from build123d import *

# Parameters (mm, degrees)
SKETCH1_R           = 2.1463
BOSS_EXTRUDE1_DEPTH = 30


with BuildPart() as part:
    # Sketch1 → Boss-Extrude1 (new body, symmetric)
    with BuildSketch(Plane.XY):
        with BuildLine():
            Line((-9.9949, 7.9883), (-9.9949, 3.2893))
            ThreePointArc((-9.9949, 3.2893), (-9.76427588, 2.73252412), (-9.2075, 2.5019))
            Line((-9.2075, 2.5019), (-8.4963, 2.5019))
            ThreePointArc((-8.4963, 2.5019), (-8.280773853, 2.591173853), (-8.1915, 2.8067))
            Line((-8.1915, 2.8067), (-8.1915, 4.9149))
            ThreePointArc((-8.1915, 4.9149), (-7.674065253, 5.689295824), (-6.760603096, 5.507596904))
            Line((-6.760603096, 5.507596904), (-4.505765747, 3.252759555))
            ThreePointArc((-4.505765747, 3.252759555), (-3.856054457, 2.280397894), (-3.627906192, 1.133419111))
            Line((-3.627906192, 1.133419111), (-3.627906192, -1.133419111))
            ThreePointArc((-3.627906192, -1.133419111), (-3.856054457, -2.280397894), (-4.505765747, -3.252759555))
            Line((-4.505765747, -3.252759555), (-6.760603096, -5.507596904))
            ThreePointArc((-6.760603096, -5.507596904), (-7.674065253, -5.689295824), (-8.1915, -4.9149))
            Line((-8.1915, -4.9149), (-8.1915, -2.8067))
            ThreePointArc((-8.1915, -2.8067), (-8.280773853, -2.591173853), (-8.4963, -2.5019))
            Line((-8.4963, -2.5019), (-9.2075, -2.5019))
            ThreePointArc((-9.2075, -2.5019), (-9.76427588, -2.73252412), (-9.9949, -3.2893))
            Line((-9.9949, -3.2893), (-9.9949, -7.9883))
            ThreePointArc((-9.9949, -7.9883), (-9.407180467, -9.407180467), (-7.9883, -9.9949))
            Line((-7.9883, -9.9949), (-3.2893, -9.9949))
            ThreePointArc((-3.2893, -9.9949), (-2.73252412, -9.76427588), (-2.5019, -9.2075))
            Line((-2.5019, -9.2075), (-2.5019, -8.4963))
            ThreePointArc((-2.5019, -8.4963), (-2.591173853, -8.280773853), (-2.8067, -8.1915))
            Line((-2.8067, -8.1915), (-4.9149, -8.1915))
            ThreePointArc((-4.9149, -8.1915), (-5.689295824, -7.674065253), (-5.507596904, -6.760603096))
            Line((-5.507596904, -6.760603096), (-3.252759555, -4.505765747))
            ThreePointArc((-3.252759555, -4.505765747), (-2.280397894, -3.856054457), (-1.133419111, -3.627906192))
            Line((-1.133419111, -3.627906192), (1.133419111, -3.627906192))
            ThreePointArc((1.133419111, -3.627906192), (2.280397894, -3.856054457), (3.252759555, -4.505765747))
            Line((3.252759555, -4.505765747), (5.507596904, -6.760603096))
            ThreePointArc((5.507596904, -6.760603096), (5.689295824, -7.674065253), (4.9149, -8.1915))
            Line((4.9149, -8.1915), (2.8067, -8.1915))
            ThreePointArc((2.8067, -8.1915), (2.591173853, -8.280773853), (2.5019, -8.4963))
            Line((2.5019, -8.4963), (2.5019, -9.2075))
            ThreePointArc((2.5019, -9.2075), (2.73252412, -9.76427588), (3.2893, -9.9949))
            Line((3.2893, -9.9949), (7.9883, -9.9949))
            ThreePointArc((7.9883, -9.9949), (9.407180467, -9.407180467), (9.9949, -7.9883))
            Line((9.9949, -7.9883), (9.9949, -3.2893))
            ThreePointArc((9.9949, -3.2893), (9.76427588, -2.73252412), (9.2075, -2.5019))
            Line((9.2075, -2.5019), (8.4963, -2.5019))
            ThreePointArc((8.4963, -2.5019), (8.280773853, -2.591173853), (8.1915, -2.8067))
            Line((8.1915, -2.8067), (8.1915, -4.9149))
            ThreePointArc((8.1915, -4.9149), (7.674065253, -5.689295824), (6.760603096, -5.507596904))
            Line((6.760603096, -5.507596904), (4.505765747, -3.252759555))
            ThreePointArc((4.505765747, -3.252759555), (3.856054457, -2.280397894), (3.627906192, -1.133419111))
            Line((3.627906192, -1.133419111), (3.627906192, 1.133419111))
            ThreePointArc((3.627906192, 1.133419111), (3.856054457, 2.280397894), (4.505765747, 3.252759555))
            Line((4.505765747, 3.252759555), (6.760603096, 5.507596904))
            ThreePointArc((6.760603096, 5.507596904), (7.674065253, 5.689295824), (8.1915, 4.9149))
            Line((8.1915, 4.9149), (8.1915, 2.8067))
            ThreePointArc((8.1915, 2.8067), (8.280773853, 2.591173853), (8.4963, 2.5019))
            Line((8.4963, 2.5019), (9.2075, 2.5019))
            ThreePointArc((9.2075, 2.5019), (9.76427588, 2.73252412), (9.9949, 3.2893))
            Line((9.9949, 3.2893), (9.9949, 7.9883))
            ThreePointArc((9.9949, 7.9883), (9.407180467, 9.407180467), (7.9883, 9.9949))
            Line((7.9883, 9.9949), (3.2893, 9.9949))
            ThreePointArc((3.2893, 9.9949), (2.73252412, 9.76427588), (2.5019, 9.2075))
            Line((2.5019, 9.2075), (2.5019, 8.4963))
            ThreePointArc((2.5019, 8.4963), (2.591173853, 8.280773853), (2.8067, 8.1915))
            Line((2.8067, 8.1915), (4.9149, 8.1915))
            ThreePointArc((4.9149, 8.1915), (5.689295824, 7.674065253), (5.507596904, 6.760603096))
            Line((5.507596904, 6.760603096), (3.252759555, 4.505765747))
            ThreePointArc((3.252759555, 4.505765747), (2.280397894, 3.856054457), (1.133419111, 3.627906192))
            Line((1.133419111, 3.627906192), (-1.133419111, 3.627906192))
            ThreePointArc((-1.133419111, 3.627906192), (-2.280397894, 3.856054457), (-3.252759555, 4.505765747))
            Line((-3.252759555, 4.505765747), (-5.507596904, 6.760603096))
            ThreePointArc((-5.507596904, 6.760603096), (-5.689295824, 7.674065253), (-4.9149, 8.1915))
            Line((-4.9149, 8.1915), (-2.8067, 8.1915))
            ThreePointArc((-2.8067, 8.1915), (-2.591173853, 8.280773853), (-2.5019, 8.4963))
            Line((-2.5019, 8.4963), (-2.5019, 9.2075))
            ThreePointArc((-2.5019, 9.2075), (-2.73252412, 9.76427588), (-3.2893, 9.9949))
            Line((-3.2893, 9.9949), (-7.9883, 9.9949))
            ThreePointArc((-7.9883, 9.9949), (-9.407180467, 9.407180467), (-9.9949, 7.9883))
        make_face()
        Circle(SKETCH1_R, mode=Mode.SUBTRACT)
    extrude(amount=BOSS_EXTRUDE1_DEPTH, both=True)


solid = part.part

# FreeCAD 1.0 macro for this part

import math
import FreeCAD as App
import Part
import Sketcher

V = App.Vector
Q = App.Units.Quantity

doc = App.newDocument("Part")
body = doc.addObject("PartDesign::Body", "Body")

# Sketch on XY plane
sketch1 = body.newObject("Sketcher::SketchObject", "Sketch")
sketch1.AttachmentSupport = (doc.getObject("XY_Plane"), [""])
sketch1.MapMode = "FlatFace"
sketch1.addGeometry(Part.LineSegment(V(-9.99, 7.99, 0), V(-9.99, 3.29, 0)), False)
sketch1.addGeometry(Part.ArcOfCircle(Part.Circle(V(-9.21, 3.29, 0), V(0, 0, 1), 0.79), math.radians(180), math.radians(270)), False)
sketch1.addGeometry(Part.LineSegment(V(-9.21, 2.5, 0), V(-8.5, 2.5, 0)), False)
sketch1.addGeometry(Part.ArcOfCircle(Part.Circle(V(-8.5, 2.81, 0), V(0, 0, 1), 0.3), math.radians(-90), math.radians(0)), False)
sketch1.addGeometry(Part.LineSegment(V(-8.19, 2.81, 0), V(-8.19, 4.91, 0)), False)
sketch1.addGeometry(Part.ArcOfCircle(Part.Circle(V(-7.35, 4.91, 0), V(0, 0, 1), 0.84), math.radians(45), math.radians(180)), False)
sketch1.addGeometry(Part.LineSegment(V(-6.76, 5.51, 0), V(-4.51, 3.25, 0)), False)
sketch1.addGeometry(Part.ArcOfCircle(Part.Circle(V(-6.63, 1.13, 0), V(0, 0, 1), 3), math.radians(0), math.radians(45)), False)
sketch1.addGeometry(Part.LineSegment(V(-3.63, 1.13, 0), V(-3.63, -1.13, 0)), False)
sketch1.addGeometry(Part.ArcOfCircle(Part.Circle(V(-6.63, -1.13, 0), V(0, 0, 1), 3), math.radians(-45), math.radians(0)), False)
sketch1.addGeometry(Part.LineSegment(V(-4.51, -3.25, 0), V(-6.76, -5.51, 0)), False)
sketch1.addGeometry(Part.ArcOfCircle(Part.Circle(V(-7.35, -4.91, 0), V(0, 0, 1), 0.84), math.radians(180), math.radians(315)), False)
sketch1.addGeometry(Part.LineSegment(V(-8.19, -4.91, 0), V(-8.19, -2.81, 0)), False)
sketch1.addGeometry(Part.ArcOfCircle(Part.Circle(V(-8.5, -2.81, 0), V(0, 0, 1), 0.3), math.radians(0), math.radians(90)), False)
sketch1.addGeometry(Part.LineSegment(V(-8.5, -2.5, 0), V(-9.21, -2.5, 0)), False)
sketch1.addGeometry(Part.ArcOfCircle(Part.Circle(V(-9.21, -3.29, 0), V(0, 0, 1), 0.79), math.radians(90), math.radians(180)), False)
sketch1.addGeometry(Part.LineSegment(V(-9.99, -3.29, 0), V(-9.99, -7.99, 0)), False)
sketch1.addGeometry(Part.ArcOfCircle(Part.Circle(V(-7.99, -7.99, 0), V(0, 0, 1), 2.01), math.radians(180), math.radians(270)), False)
sketch1.addGeometry(Part.LineSegment(V(-7.99, -9.99, 0), V(-3.29, -9.99, 0)), False)
sketch1.addGeometry(Part.ArcOfCircle(Part.Circle(V(-3.29, -9.21, 0), V(0, 0, 1), 0.79), math.radians(-90), math.radians(0)), False)
sketch1.addGeometry(Part.LineSegment(V(-2.5, -9.21, 0), V(-2.5, -8.5, 0)), False)
sketch1.addGeometry(Part.ArcOfCircle(Part.Circle(V(-2.81, -8.5, 0), V(0, 0, 1), 0.3), math.radians(0), math.radians(90)), False)
sketch1.addGeometry(Part.LineSegment(V(-2.81, -8.19, 0), V(-4.91, -8.19, 0)), False)
sketch1.addGeometry(Part.ArcOfCircle(Part.Circle(V(-4.91, -7.35, 0), V(0, 0, 1), 0.84), math.radians(135), math.radians(270)), False)
sketch1.addGeometry(Part.LineSegment(V(-5.51, -6.76, 0), V(-3.25, -4.51, 0)), False)
sketch1.addGeometry(Part.ArcOfCircle(Part.Circle(V(-1.13, -6.63, 0), V(0, 0, 1), 3), math.radians(90), math.radians(135)), False)
sketch1.addGeometry(Part.LineSegment(V(-1.13, -3.63, 0), V(1.13, -3.63, 0)), False)
sketch1.addGeometry(Part.ArcOfCircle(Part.Circle(V(1.13, -6.63, 0), V(0, 0, 1), 3), math.radians(45), math.radians(90)), False)
sketch1.addGeometry(Part.LineSegment(V(3.25, -4.51, 0), V(5.51, -6.76, 0)), False)
sketch1.addGeometry(Part.ArcOfCircle(Part.Circle(V(4.91, -7.35, 0), V(0, 0, 1), 0.84), math.radians(-90), math.radians(45)), False)
sketch1.addGeometry(Part.LineSegment(V(4.91, -8.19, 0), V(2.81, -8.19, 0)), False)
sketch1.addGeometry(Part.ArcOfCircle(Part.Circle(V(2.81, -8.5, 0), V(0, 0, 1), 0.3), math.radians(90), math.radians(180)), False)
sketch1.addGeometry(Part.LineSegment(V(2.5, -8.5, 0), V(2.5, -9.21, 0)), False)
sketch1.addGeometry(Part.ArcOfCircle(Part.Circle(V(3.29, -9.21, 0), V(0, 0, 1), 0.79), math.radians(180), math.radians(270)), False)
sketch1.addGeometry(Part.LineSegment(V(3.29, -9.99, 0), V(7.99, -9.99, 0)), False)
sketch1.addGeometry(Part.ArcOfCircle(Part.Circle(V(7.99, -7.99, 0), V(0, 0, 1), 2.01), math.radians(-90), math.radians(0)), False)
sketch1.addGeometry(Part.LineSegment(V(9.99, -7.99, 0), V(9.99, -3.29, 0)), False)
sketch1.addGeometry(Part.ArcOfCircle(Part.Circle(V(9.21, -3.29, 0), V(0, 0, 1), 0.79), math.radians(0), math.radians(90)), False)
sketch1.addGeometry(Part.LineSegment(V(9.21, -2.5, 0), V(8.5, -2.5, 0)), False)
sketch1.addGeometry(Part.ArcOfCircle(Part.Circle(V(8.5, -2.81, 0), V(0, 0, 1), 0.3), math.radians(90), math.radians(180)), False)
sketch1.addGeometry(Part.LineSegment(V(8.19, -2.81, 0), V(8.19, -4.91, 0)), False)
sketch1.addGeometry(Part.ArcOfCircle(Part.Circle(V(7.35, -4.91, 0), V(0, 0, 1), 0.84), math.radians(-135), math.radians(0)), False)
sketch1.addGeometry(Part.LineSegment(V(6.76, -5.51, 0), V(4.51, -3.25, 0)), False)
sketch1.addGeometry(Part.ArcOfCircle(Part.Circle(V(6.63, -1.13, 0), V(0, 0, 1), 3), math.radians(180), math.radians(225)), False)
sketch1.addGeometry(Part.LineSegment(V(3.63, -1.13, 0), V(3.63, 1.13, 0)), False)
sketch1.addGeometry(Part.ArcOfCircle(Part.Circle(V(6.63, 1.13, 0), V(0, 0, 1), 3), math.radians(135), math.radians(180)), False)
sketch1.addGeometry(Part.LineSegment(V(4.51, 3.25, 0), V(6.76, 5.51, 0)), False)
sketch1.addGeometry(Part.ArcOfCircle(Part.Circle(V(7.35, 4.91, 0), V(0, 0, 1), 0.84), math.radians(0), math.radians(135)), False)
sketch1.addGeometry(Part.LineSegment(V(8.19, 4.91, 0), V(8.19, 2.81, 0)), False)
sketch1.addGeometry(Part.ArcOfCircle(Part.Circle(V(8.5, 2.81, 0), V(0, 0, 1), 0.3), math.radians(180), math.radians(270)), False)
sketch1.addGeometry(Part.LineSegment(V(8.5, 2.5, 0), V(9.21, 2.5, 0)), False)
sketch1.addGeometry(Part.ArcOfCircle(Part.Circle(V(9.21, 3.29, 0), V(0, 0, 1), 0.79), math.radians(-90), math.radians(0)), False)
sketch1.addGeometry(Part.LineSegment(V(9.99, 3.29, 0), V(9.99, 7.99, 0)), False)
sketch1.addGeometry(Part.ArcOfCircle(Part.Circle(V(7.99, 7.99, 0), V(0, 0, 1), 2.01), math.radians(0), math.radians(90)), False)
sketch1.addGeometry(Part.LineSegment(V(7.99, 9.99, 0), V(3.29, 9.99, 0)), False)
sketch1.addGeometry(Part.ArcOfCircle(Part.Circle(V(3.29, 9.21, 0), V(0, 0, 1), 0.79), math.radians(90), math.radians(180)), False)
sketch1.addGeometry(Part.LineSegment(V(2.5, 9.21, 0), V(2.5, 8.5, 0)), False)
sketch1.addGeometry(Part.ArcOfCircle(Part.Circle(V(2.81, 8.5, 0), V(0, 0, 1), 0.3), math.radians(180), math.radians(270)), False)
sketch1.addGeometry(Part.LineSegment(V(2.81, 8.19, 0), V(4.91, 8.19, 0)), False)
sketch1.addGeometry(Part.ArcOfCircle(Part.Circle(V(4.91, 7.35, 0), V(0, 0, 1), 0.84), math.radians(-45), math.radians(90)), False)
sketch1.addGeometry(Part.LineSegment(V(5.51, 6.76, 0), V(3.25, 4.51, 0)), False)
sketch1.addGeometry(Part.ArcOfCircle(Part.Circle(V(1.13, 6.63, 0), V(0, 0, 1), 3), math.radians(-90), math.radians(-45)), False)
sketch1.addGeometry(Part.LineSegment(V(1.13, 3.63, 0), V(-1.13, 3.63, 0)), False)
sketch1.addGeometry(Part.ArcOfCircle(Part.Circle(V(-1.13, 6.63, 0), V(0, 0, 1), 3), math.radians(-135), math.radians(-90)), False)
sketch1.addGeometry(Part.LineSegment(V(-3.25, 4.51, 0), V(-5.51, 6.76, 0)), False)
sketch1.addGeometry(Part.ArcOfCircle(Part.Circle(V(-4.91, 7.35, 0), V(0, 0, 1), 0.84), math.radians(90), math.radians(225)), False)
sketch1.addGeometry(Part.LineSegment(V(-4.91, 8.19, 0), V(-2.81, 8.19, 0)), False)
sketch1.addGeometry(Part.ArcOfCircle(Part.Circle(V(-2.81, 8.5, 0), V(0, 0, 1), 0.3), math.radians(-90), math.radians(0)), False)
sketch1.addGeometry(Part.LineSegment(V(-2.5, 8.5, 0), V(-2.5, 9.21, 0)), False)
sketch1.addGeometry(Part.ArcOfCircle(Part.Circle(V(-3.29, 9.21, 0), V(0, 0, 1), 0.79), math.radians(0), math.radians(90)), False)
sketch1.addGeometry(Part.LineSegment(V(-3.29, 9.99, 0), V(-7.99, 9.99, 0)), False)
sketch1.addGeometry(Part.ArcOfCircle(Part.Circle(V(-7.99, 7.99, 0), V(0, 0, 1), 2.01), math.radians(90), math.radians(180)), False)
sketch1.addGeometry(Part.Circle(V(0, 0, 0), V(0, 0, 1), 2.15), False)
sketch1.addConstraint(Sketcher.Constraint("Tangent", 0, 2, 1, 1))
sketch1.addConstraint(Sketcher.Constraint("Tangent", 1, 2, 2, 1))
sketch1.addConstraint(Sketcher.Constraint("Tangent", 2, 2, 3, 1))
sketch1.addConstraint(Sketcher.Constraint("Tangent", 3, 2, 4, 1))
sketch1.addConstraint(Sketcher.Constraint("Tangent", 4, 2, 5, 2))
sketch1.addConstraint(Sketcher.Constraint("Tangent", 5, 1, 6, 1))
sketch1.addConstraint(Sketcher.Constraint("Tangent", 6, 2, 7, 2))
sketch1.addConstraint(Sketcher.Constraint("Tangent", 7, 1, 8, 1))
sketch1.addConstraint(Sketcher.Constraint("Tangent", 8, 2, 9, 2))
sketch1.addConstraint(Sketcher.Constraint("Tangent", 9, 1, 10, 1))
sketch1.addConstraint(Sketcher.Constraint("Tangent", 10, 2, 11, 2))
sketch1.addConstraint(Sketcher.Constraint("Tangent", 11, 1, 12, 1))
sketch1.addConstraint(Sketcher.Constraint("Tangent", 12, 2, 13, 1))
sketch1.addConstraint(Sketcher.Constraint("Tangent", 13, 2, 14, 1))
sketch1.addConstraint(Sketcher.Constraint("Tangent", 14, 2, 15, 1))
sketch1.addConstraint(Sketcher.Constraint("Tangent", 15, 2, 16, 1))
sketch1.addConstraint(Sketcher.Constraint("Tangent", 16, 2, 17, 1))
sketch1.addConstraint(Sketcher.Constraint("Tangent", 17, 2, 18, 1))
sketch1.addConstraint(Sketcher.Constraint("Tangent", 18, 2, 19, 1))
sketch1.addConstraint(Sketcher.Constraint("Tangent", 19, 2, 20, 1))
sketch1.addConstraint(Sketcher.Constraint("Tangent", 20, 2, 21, 1))
sketch1.addConstraint(Sketcher.Constraint("Tangent", 21, 2, 22, 1))
sketch1.addConstraint(Sketcher.Constraint("Tangent", 22, 2, 23, 2))
sketch1.addConstraint(Sketcher.Constraint("Tangent", 23, 1, 24, 1))
sketch1.addConstraint(Sketcher.Constraint("Tangent", 24, 2, 25, 2))
sketch1.addConstraint(Sketcher.Constraint("Tangent", 25, 1, 26, 1))
sketch1.addConstraint(Sketcher.Constraint("Tangent", 26, 2, 27, 2))
sketch1.addConstraint(Sketcher.Constraint("Tangent", 27, 1, 28, 1))
sketch1.addConstraint(Sketcher.Constraint("Tangent", 28, 2, 29, 2))
sketch1.addConstraint(Sketcher.Constraint("Tangent", 29, 1, 30, 1))
sketch1.addConstraint(Sketcher.Constraint("Tangent", 30, 2, 31, 1))
sketch1.addConstraint(Sketcher.Constraint("Tangent", 31, 2, 32, 1))
sketch1.addConstraint(Sketcher.Constraint("Tangent", 32, 2, 33, 1))
sketch1.addConstraint(Sketcher.Constraint("Tangent", 33, 2, 34, 1))
sketch1.addConstraint(Sketcher.Constraint("Tangent", 34, 2, 35, 1))
sketch1.addConstraint(Sketcher.Constraint("Tangent", 35, 2, 36, 1))
sketch1.addConstraint(Sketcher.Constraint("Tangent", 36, 2, 37, 1))
sketch1.addConstraint(Sketcher.Constraint("Tangent", 37, 2, 38, 1))
sketch1.addConstraint(Sketcher.Constraint("Tangent", 38, 2, 39, 1))
sketch1.addConstraint(Sketcher.Constraint("Tangent", 39, 2, 40, 1))
sketch1.addConstraint(Sketcher.Constraint("Tangent", 40, 2, 41, 2))
sketch1.addConstraint(Sketcher.Constraint("Tangent", 41, 1, 42, 1))
sketch1.addConstraint(Sketcher.Constraint("Tangent", 42, 2, 43, 2))
sketch1.addConstraint(Sketcher.Constraint("Tangent", 43, 1, 44, 1))
sketch1.addConstraint(Sketcher.Constraint("Tangent", 44, 2, 45, 2))
sketch1.addConstraint(Sketcher.Constraint("Tangent", 45, 1, 46, 1))
sketch1.addConstraint(Sketcher.Constraint("Tangent", 46, 2, 47, 2))
sketch1.addConstraint(Sketcher.Constraint("Tangent", 47, 1, 48, 1))
sketch1.addConstraint(Sketcher.Constraint("Tangent", 48, 2, 49, 1))
sketch1.addConstraint(Sketcher.Constraint("Tangent", 49, 2, 50, 1))
sketch1.addConstraint(Sketcher.Constraint("Tangent", 50, 2, 51, 1))
sketch1.addConstraint(Sketcher.Constraint("Tangent", 51, 2, 52, 1))
sketch1.addConstraint(Sketcher.Constraint("Tangent", 52, 2, 53, 1))
sketch1.addConstraint(Sketcher.Constraint("Tangent", 53, 2, 54, 1))
sketch1.addConstraint(Sketcher.Constraint("Tangent", 54, 2, 55, 1))
sketch1.addConstraint(Sketcher.Constraint("Tangent", 55, 2, 56, 1))
sketch1.addConstraint(Sketcher.Constraint("Tangent", 56, 2, 57, 1))
sketch1.addConstraint(Sketcher.Constraint("Tangent", 57, 2, 58, 1))
sketch1.addConstraint(Sketcher.Constraint("Tangent", 58, 2, 59, 2))
sketch1.addConstraint(Sketcher.Constraint("Tangent", 59, 1, 60, 1))
sketch1.addConstraint(Sketcher.Constraint("Tangent", 60, 2, 61, 2))
sketch1.addConstraint(Sketcher.Constraint("Tangent", 61, 1, 62, 1))
sketch1.addConstraint(Sketcher.Constraint("Tangent", 62, 2, 63, 2))
sketch1.addConstraint(Sketcher.Constraint("Tangent", 63, 1, 64, 1))
sketch1.addConstraint(Sketcher.Constraint("Tangent", 64, 2, 65, 2))
sketch1.addConstraint(Sketcher.Constraint("Tangent", 65, 1, 66, 1))
sketch1.addConstraint(Sketcher.Constraint("Tangent", 66, 2, 67, 1))
sketch1.addConstraint(Sketcher.Constraint("Tangent", 67, 2, 68, 1))
sketch1.addConstraint(Sketcher.Constraint("Tangent", 68, 2, 69, 1))
sketch1.addConstraint(Sketcher.Constraint("Tangent", 69, 2, 70, 1))
sketch1.addConstraint(Sketcher.Constraint("Tangent", 70, 2, 71, 1))
sketch1.addConstraint(Sketcher.Constraint("Tangent", 71, 2, 0, 1))
sketch1.addConstraint(Sketcher.Constraint("Vertical", 0))
sketch1.addConstraint(Sketcher.Constraint("Horizontal", 2))
sketch1.addConstraint(Sketcher.Constraint("Vertical", 4))
sketch1.addConstraint(Sketcher.Constraint("Vertical", 8))
sketch1.addConstraint(Sketcher.Constraint("Vertical", 12))
sketch1.addConstraint(Sketcher.Constraint("Horizontal", 14))
sketch1.addConstraint(Sketcher.Constraint("Vertical", 16))
sketch1.addConstraint(Sketcher.Constraint("Horizontal", 18))
sketch1.addConstraint(Sketcher.Constraint("Vertical", 20))
sketch1.addConstraint(Sketcher.Constraint("Horizontal", 22))
sketch1.addConstraint(Sketcher.Constraint("Horizontal", 26))
sketch1.addConstraint(Sketcher.Constraint("Horizontal", 30))
sketch1.addConstraint(Sketcher.Constraint("Vertical", 32))
sketch1.addConstraint(Sketcher.Constraint("Horizontal", 34))
sketch1.addConstraint(Sketcher.Constraint("Vertical", 36))
sketch1.addConstraint(Sketcher.Constraint("Horizontal", 38))
sketch1.addConstraint(Sketcher.Constraint("Vertical", 40))
sketch1.addConstraint(Sketcher.Constraint("Vertical", 44))
sketch1.addConstraint(Sketcher.Constraint("Vertical", 48))
sketch1.addConstraint(Sketcher.Constraint("Horizontal", 50))
sketch1.addConstraint(Sketcher.Constraint("Vertical", 52))
sketch1.addConstraint(Sketcher.Constraint("Horizontal", 54))
sketch1.addConstraint(Sketcher.Constraint("Vertical", 56))
sketch1.addConstraint(Sketcher.Constraint("Horizontal", 58))
sketch1.addConstraint(Sketcher.Constraint("Horizontal", 62))
sketch1.addConstraint(Sketcher.Constraint("Horizontal", 66))
sketch1.addConstraint(Sketcher.Constraint("Vertical", 68))
sketch1.addConstraint(Sketcher.Constraint("Horizontal", 70))
sketch1.addConstraint(Sketcher.Constraint("Coincident", 72, 3, -1, 1))
sketch1.addConstraint(Sketcher.Constraint("Equal", 7, 9))
sketch1.addConstraint(Sketcher.Constraint("Equal", 5, 11))
sketch1.addConstraint(Sketcher.Constraint("Equal", 3, 13))
sketch1.addConstraint(Sketcher.Constraint("Equal", 1, 15))
sketch1.addConstraint(Sketcher.Constraint("Equal", 15, 19))
sketch1.addConstraint(Sketcher.Constraint("Equal", 13, 21))
sketch1.addConstraint(Sketcher.Constraint("Equal", 11, 23))
sketch1.addConstraint(Sketcher.Constraint("Equal", 9, 25))
sketch1.addConstraint(Sketcher.Constraint("Equal", 25, 27))
sketch1.addConstraint(Sketcher.Constraint("Equal", 23, 29))
sketch1.addConstraint(Sketcher.Constraint("Equal", 21, 31))
sketch1.addConstraint(Sketcher.Constraint("Equal", 19, 33))
sketch1.addConstraint(Sketcher.Constraint("Equal", 17, 35))
sketch1.addConstraint(Sketcher.Constraint("Equal", 33, 37))
sketch1.addConstraint(Sketcher.Constraint("Equal", 31, 39))
sketch1.addConstraint(Sketcher.Constraint("Equal", 29, 41))
sketch1.addConstraint(Sketcher.Constraint("Equal", 27, 43))
sketch1.addConstraint(Sketcher.Constraint("Equal", 43, 45))
sketch1.addConstraint(Sketcher.Constraint("Equal", 41, 47))
sketch1.addConstraint(Sketcher.Constraint("Equal", 39, 49))
sketch1.addConstraint(Sketcher.Constraint("Equal", 37, 51))
sketch1.addConstraint(Sketcher.Constraint("Equal", 35, 53))
sketch1.addConstraint(Sketcher.Constraint("Equal", 51, 55))
sketch1.addConstraint(Sketcher.Constraint("Equal", 49, 57))
sketch1.addConstraint(Sketcher.Constraint("Equal", 47, 59))
sketch1.addConstraint(Sketcher.Constraint("Equal", 45, 61))
sketch1.addConstraint(Sketcher.Constraint("Equal", 61, 63))
sketch1.addConstraint(Sketcher.Constraint("Equal", 59, 65))
sketch1.addConstraint(Sketcher.Constraint("Equal", 57, 67))
sketch1.addConstraint(Sketcher.Constraint("Equal", 55, 69))
sketch1.addConstraint(Sketcher.Constraint("Equal", 53, 71))
sketch1.addConstraint(Sketcher.Constraint("Symmetric", 1, 3, 37, 3, -1, 1))
sketch1.addConstraint(Sketcher.Constraint("Symmetric", 5, 3, 41, 3, -1, 1))
sketch1.addConstraint(Sketcher.Constraint("Symmetric", 7, 3, 43, 3, -1, 1))
sketch1.addConstraint(Sketcher.Constraint("Symmetric", 11, 3, 47, 3, -1, 1))
sketch1.addConstraint(Sketcher.Constraint("Symmetric", 15, 3, 51, 3, -1, 1))
sketch1.addConstraint(Sketcher.Constraint("Symmetric", 19, 3, 55, 3, -1, 1))
sketch1.addConstraint(Sketcher.Constraint("Symmetric", 23, 3, 59, 3, -1, 1))
sketch1.addConstraint(Sketcher.Constraint("Symmetric", 25, 3, 61, 3, -1, 1))
sketch1.addConstraint(Sketcher.Constraint("Symmetric", 29, 3, 65, 3, -1, 1))
sketch1.addConstraint(Sketcher.Constraint("Symmetric", 33, 3, 69, 3, -1, 1))
sketch1.addConstraint(Sketcher.Constraint("Symmetric", 23, 3, 29, 3, -2))
sketch1.addConstraint(Sketcher.Constraint("Symmetric", 19, 3, 33, 3, -2))
sketch1.addConstraint(Sketcher.Constraint("Symmetric", 15, 3, 37, 3, -2))
sketch1.addConstraint(Sketcher.Constraint("Symmetric", 11, 3, 41, 3, -2))
sketch1.addConstraint(Sketcher.Constraint("Perpendicular", 6, 10))
sketch1.addConstraint(Sketcher.Constraint("Parallel", 10, 24))
sketch1.addConstraint(Sketcher.Constraint("Perpendicular", 24, 28))
sketch1.addConstraint(Sketcher.Constraint("Perpendicular", 42, 46))
sketch1.addConstraint(Sketcher.Constraint("Perpendicular", 60, 64))
sketch1.addConstraint(Sketcher.Constraint("Horizontal", 9, 3, 43, 3))
sketch1.addConstraint(Sketcher.Constraint("Equal", 70, 0))
sketch1.addConstraint(Sketcher.Constraint("Equal", 66, 4))
sketch1.addConstraint(Sketcher.Constraint("Equal", 62, 8))
sketch1.addConstraint(Sketcher.Constraint("Equal", 50, 20))
sketch1.addConstraint(Sketcher.Constraint("Equal", 10, 24))
sketch1.addConstraint(Sketcher.Constraint("Diameter", 72, Q("0.169 in")))
sketch1.addConstraint(Sketcher.Constraint("Radius", 1, Q("0.031 in")))
sketch1.addConstraint(Sketcher.Constraint("Radius", 3, Q("0.012 in")))
sketch1.addConstraint(Sketcher.Constraint("Radius", 5, Q("0.033 in")))
sketch1.addConstraint(Sketcher.Constraint("Radius", 7, Q("0.118 in")))
sketch1.addConstraint(Sketcher.Constraint("Radius", 17, Q("0.079 in")))
sketch1.addConstraint(Sketcher.Constraint("DistanceX", 2, 1, 2, 2, Q("0.028 in")))
sketch1.addConstraint(Sketcher.Constraint("DistanceX", 18, 1, 18, 2, Q("0.185 in")))
sketch1.addConstraint(Sketcher.Constraint("DistanceX", 22, 2, 22, 1, Q("0.083 in")))
sketch1.addConstraint(Sketcher.Constraint("DistanceX", 1, 3, -1, 1, Q("0.3625 in")))
sketch1.addConstraint(Sketcher.Constraint("DistanceX", 26, 1, 26, 2, Q("2.266838 mm")))
pad1 = body.newObject("PartDesign::Pad", "Pad")
pad1.Profile = sketch1
pad1.Length = 60
pad1.Midplane = True

doc.recompute()
